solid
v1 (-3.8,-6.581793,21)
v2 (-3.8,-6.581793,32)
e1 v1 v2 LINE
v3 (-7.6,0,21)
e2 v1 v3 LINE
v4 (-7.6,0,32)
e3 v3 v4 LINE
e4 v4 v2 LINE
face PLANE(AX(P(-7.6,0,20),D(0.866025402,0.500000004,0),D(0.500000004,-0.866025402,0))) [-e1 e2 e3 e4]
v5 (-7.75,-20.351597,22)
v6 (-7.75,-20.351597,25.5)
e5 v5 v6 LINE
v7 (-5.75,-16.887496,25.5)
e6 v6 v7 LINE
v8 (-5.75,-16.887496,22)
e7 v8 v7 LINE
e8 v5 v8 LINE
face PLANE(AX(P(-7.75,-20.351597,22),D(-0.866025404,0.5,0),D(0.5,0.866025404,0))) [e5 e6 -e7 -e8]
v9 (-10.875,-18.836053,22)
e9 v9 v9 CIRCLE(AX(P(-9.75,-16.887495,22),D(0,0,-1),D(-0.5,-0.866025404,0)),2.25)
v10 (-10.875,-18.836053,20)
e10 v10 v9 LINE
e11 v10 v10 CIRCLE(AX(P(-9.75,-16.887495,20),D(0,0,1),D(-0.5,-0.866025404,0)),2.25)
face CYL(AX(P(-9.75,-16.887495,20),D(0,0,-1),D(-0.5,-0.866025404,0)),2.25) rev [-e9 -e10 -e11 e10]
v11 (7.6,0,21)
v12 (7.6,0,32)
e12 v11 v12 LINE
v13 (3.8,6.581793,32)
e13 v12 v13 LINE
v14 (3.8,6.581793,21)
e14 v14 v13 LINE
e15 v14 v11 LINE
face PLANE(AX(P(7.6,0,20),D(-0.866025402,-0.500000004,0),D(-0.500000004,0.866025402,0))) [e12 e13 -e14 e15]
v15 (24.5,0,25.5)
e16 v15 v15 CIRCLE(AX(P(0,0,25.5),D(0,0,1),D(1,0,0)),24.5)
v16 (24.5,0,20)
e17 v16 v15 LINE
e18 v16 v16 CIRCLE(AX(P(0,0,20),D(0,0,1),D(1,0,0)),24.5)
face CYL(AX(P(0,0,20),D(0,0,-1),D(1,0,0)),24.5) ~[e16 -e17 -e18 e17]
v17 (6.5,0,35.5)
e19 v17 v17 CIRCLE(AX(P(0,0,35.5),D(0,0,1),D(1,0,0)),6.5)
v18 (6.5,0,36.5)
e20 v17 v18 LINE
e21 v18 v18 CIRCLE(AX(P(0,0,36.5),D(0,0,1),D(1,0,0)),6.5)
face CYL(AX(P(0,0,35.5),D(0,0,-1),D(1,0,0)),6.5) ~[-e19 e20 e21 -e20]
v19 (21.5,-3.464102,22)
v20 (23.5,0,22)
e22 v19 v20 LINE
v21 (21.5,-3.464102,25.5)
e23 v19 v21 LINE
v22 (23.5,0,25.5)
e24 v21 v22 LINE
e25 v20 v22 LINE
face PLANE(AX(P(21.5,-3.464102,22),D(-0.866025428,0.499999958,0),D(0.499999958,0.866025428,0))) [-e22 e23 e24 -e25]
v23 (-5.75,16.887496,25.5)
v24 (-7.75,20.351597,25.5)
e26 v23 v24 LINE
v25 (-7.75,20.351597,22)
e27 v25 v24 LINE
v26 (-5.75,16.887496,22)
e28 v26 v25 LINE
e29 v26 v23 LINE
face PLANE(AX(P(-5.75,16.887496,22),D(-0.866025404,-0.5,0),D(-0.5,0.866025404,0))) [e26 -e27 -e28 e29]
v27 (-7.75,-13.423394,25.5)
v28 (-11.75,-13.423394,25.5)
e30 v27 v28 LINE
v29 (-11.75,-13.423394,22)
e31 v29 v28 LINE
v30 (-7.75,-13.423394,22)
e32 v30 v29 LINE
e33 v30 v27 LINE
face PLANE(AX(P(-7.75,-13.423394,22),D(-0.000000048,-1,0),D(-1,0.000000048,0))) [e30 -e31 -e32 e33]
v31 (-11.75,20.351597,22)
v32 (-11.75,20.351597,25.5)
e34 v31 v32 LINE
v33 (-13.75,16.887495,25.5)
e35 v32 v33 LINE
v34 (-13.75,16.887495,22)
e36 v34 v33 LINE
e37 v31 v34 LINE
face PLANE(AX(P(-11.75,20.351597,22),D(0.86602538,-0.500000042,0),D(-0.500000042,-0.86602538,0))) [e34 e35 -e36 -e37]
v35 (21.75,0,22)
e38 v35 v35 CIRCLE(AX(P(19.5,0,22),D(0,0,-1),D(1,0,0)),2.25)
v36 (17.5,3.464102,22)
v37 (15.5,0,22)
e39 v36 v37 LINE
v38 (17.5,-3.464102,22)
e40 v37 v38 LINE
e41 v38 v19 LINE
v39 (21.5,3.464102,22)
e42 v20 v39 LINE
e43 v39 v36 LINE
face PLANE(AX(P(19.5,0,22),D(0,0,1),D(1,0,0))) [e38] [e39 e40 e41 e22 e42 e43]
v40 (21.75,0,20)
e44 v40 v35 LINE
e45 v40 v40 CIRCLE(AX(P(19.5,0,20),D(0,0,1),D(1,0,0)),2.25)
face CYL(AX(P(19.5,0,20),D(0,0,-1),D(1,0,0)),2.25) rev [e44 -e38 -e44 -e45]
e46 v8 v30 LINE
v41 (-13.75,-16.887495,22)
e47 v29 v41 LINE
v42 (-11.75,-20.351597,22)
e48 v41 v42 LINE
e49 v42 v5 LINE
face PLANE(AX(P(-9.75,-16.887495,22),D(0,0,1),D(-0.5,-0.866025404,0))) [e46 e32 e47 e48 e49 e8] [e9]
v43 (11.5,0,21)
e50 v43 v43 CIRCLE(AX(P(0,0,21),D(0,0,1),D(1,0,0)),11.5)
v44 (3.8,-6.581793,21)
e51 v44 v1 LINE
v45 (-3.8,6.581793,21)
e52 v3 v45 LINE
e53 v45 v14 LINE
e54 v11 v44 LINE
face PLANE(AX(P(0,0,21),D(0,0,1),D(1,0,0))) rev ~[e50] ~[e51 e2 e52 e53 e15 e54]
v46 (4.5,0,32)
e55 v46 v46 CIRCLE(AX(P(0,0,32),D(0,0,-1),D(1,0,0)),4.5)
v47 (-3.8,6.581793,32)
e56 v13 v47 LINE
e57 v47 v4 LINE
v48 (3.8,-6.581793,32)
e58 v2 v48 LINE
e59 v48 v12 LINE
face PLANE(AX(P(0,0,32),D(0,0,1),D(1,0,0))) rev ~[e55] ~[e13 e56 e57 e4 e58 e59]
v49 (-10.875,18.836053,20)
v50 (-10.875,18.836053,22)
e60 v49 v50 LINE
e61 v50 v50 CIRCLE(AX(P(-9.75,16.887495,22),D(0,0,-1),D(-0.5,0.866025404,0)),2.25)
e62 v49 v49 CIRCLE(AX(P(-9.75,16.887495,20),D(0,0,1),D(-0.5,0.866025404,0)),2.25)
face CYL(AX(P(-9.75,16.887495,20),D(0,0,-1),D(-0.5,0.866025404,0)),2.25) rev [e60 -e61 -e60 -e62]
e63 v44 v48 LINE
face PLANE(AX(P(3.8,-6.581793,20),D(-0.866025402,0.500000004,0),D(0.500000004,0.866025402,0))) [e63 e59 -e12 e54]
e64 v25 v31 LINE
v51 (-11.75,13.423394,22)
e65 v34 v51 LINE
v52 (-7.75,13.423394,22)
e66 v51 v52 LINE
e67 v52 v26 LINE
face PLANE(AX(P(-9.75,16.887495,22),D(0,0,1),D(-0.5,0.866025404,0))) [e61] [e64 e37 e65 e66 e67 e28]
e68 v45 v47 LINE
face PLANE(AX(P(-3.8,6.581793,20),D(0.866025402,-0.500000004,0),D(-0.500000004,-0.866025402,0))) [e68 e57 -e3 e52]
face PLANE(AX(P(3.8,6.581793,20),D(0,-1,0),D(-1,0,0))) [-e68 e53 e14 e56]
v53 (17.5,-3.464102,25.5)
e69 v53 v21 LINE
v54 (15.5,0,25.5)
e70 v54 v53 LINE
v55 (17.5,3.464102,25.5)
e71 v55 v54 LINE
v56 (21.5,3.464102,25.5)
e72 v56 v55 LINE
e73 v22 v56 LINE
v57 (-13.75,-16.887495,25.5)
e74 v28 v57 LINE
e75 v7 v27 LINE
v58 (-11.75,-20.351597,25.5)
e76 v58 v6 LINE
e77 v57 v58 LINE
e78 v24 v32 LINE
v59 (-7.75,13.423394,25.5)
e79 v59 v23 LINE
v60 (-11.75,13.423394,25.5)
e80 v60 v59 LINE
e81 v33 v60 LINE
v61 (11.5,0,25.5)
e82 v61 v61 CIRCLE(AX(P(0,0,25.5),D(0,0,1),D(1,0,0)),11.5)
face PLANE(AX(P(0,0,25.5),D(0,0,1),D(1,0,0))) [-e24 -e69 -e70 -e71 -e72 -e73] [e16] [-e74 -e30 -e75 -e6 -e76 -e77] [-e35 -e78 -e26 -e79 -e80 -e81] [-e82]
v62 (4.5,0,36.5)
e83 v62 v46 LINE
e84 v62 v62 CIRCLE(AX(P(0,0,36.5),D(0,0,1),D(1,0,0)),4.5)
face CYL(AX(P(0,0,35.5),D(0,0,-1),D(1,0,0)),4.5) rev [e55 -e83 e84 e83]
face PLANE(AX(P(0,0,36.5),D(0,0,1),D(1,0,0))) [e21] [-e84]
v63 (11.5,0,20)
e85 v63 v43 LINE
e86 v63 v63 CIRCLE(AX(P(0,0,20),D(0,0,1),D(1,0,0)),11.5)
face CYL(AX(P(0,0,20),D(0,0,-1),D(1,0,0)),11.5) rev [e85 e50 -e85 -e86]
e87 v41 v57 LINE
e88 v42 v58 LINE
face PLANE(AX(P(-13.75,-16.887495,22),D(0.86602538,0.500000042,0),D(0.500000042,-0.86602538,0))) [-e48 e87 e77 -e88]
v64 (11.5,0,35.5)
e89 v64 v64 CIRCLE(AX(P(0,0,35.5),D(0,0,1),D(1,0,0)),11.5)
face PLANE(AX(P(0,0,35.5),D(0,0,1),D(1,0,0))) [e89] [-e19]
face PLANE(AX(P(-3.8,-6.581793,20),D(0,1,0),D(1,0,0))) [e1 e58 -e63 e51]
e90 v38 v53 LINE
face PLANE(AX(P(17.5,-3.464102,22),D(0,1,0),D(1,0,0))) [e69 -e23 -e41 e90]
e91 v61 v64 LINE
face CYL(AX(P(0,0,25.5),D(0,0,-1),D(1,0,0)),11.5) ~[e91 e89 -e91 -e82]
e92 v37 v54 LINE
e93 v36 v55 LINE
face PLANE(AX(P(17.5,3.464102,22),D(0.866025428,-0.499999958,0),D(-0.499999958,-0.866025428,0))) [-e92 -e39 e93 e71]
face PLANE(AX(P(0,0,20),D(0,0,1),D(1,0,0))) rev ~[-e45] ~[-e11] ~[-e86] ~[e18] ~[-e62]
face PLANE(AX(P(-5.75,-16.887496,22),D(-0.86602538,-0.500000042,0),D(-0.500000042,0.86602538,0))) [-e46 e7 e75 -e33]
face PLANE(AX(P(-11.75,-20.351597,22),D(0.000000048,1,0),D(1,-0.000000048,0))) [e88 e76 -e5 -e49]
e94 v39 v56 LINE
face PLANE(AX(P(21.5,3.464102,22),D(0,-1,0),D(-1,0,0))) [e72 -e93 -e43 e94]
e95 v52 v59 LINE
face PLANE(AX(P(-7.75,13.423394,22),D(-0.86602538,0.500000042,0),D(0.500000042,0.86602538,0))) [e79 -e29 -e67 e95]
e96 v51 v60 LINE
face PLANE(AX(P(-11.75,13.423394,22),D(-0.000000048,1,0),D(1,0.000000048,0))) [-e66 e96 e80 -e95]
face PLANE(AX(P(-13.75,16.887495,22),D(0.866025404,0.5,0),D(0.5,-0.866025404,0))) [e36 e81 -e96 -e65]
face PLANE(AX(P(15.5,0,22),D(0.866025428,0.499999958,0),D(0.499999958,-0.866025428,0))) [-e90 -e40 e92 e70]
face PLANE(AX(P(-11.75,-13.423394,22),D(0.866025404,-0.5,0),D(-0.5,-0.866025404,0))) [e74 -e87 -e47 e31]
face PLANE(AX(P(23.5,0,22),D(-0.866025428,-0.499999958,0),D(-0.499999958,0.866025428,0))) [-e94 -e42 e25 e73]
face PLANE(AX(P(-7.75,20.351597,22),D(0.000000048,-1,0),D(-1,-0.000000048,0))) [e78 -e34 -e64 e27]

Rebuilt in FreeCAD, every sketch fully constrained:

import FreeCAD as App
import Part
import Sketcher
Q = App.Units.Quantity

doc = App.newDocument("Part")
body = doc.addObject("PartDesign::Body", "Body")

# Sketch on XY plane
sketch1 = body.newObject("Sketcher::SketchObject", "Sketch")
sketch1.AttachmentSupport = (doc.getObject("XY_Plane"), [""])
sketch1.MapMode = "FlatFace"
sketch1.AttachmentOffset = App.Placement(App.Vector(0, 0, 35.5), App.Rotation())
sketch1.addGeometry([
    Part.Circle(App.Vector(0, 0, 0), App.Vector(0, 0, 1), 6.5),
    Part.Circle(App.Vector(0, 0, 0), App.Vector(0, 0, 1), 4.5),
], False)
sketch1.addConstraint([
    Sketcher.Constraint("Coincident", 0, 3, -1, 1),
    Sketcher.Constraint("Coincident", 1, 3, -1, 1),
    Sketcher.Constraint("Diameter", 0, Q("13 mm")),
    Sketcher.Constraint("Diameter", 1, Q("9 mm")),
])
pad1 = body.newObject("PartDesign::Pad", "Pad")
pad1.Profile = sketch1
pad1.Length = 1
body2 = doc.addObject("PartDesign::Body", "Body001")

# Sketch on XY plane
sketch2 = body2.newObject("Sketcher::SketchObject", "Sketch001")
sketch2.AttachmentSupport = (doc.getObject("XY_Plane001"), [""])
sketch2.MapMode = "FlatFace"
sketch2.addGeometry([
    Part.LineSegment(App.Vector(8, 0, 0), App.Vector(4, 7, 0)),  # 0
    Part.LineSegment(App.Vector(4, 7, 0), App.Vector(-4, 7, 0)),  # 1
    Part.LineSegment(App.Vector(-4, 7, 0), App.Vector(-8, 0, 0)),  # 2
    Part.LineSegment(App.Vector(-8, 0, 0), App.Vector(-4, -7, 0)),  # 3
    Part.LineSegment(App.Vector(-4, -7, 0), App.Vector(4, -7, 0)),  # 4
    Part.LineSegment(App.Vector(4, -7, 0), App.Vector(8, 0, 0)),  # 5
], False)
sketch2.addConstraint([
    Sketcher.Constraint("Coincident", 0, 2, 1, 1),
    Sketcher.Constraint("Coincident", 1, 2, 2, 1),
    Sketcher.Constraint("Coincident", 2, 2, 3, 1),
    Sketcher.Constraint("Coincident", 3, 2, 4, 1),
    Sketcher.Constraint("Coincident", 4, 2, 5, 1),
    Sketcher.Constraint("Coincident", 5, 2, 0, 1),
    Sketcher.Constraint("Horizontal", 1),
    Sketcher.Constraint("Horizontal", 4),
    Sketcher.Constraint("Symmetric", 0, 2, 3, 2, -1, 1),
    Sketcher.Constraint("Symmetric", 2, 2, 5, 2, -1, 1),
    Sketcher.Constraint("PointOnObject", 2, 2, -1),
    Sketcher.Constraint("Parallel", 2, 5),
    Sketcher.Constraint("Vertical", 1, 2, 3, 2),
    Sketcher.Constraint("Angle", 0, Q("120 deg")),
    Sketcher.Constraint("DistanceX", 1, 2, 1, 1, Q("7.6 mm")),
    Sketcher.Constraint("Distance", 0, Q("7.6 mm")),
])
pad2 = body2.newObject("PartDesign::Pad", "Pad001")
pad2.Profile = sketch2
pad2.Length = 12
body3 = doc.addObject("PartDesign::Body", "Body002")
doc.recompute()

body2.Placement = App.Placement(App.Vector(0, 0, 20), App.Rotation(App.Vector(0, 0, 1), 0))
boolean = body3.newObject("PartDesign::Boolean", "Boolean")
boolean.Type = "Fuse"
boolean.addObjects([body2])
body4 = doc.addObject("PartDesign::Body", "Body003")

# Sketch on XY plane
sketch3 = body4.newObject("Sketcher::SketchObject", "Sketch002")
sketch3.AttachmentSupport = (doc.getObject("XY_Plane003"), [""])
sketch3.MapMode = "FlatFace"
sketch3.addGeometry(Part.Circle(App.Vector(0, 0, 0), App.Vector(0, 0, 1), 4.5), False)
sketch3.addConstraint([
    Sketcher.Constraint("Coincident", 0, 3, -1, 1),
    Sketcher.Constraint("Diameter", 0, Q("9 mm")),
])
pad3 = body4.newObject("PartDesign::Pad", "Pad002")
pad3.Profile = sketch3
pad3.Length = 500
doc.recompute()

boolean2 = body4.newObject("PartDesign::Boolean", "Boolean001")
boolean2.Type = "Fuse"
boolean2.addObjects([body3])
body5 = doc.addObject("PartDesign::Body", "Body004")

# Sketch on XY plane
sketch4 = body5.newObject("Sketcher::SketchObject", "Sketch003")
sketch4.AttachmentSupport = (doc.getObject("XY_Plane004"), [""])
sketch4.MapMode = "FlatFace"
sketch4.AttachmentOffset = App.Placement(App.Vector(0, 0, 20), App.Rotation())
sketch4.addGeometry(Part.Circle(App.Vector(0, 0, 0), App.Vector(0, 0, 1), 12), False)
sketch4.addConstraint([
    Sketcher.Constraint("Coincident", 0, 3, -1, 1),
    Sketcher.Constraint("Diameter", 0, Q("23 mm")),
])
pad4 = body5.newObject("PartDesign::Pad", "Pad003")
pad4.Profile = sketch4
pad4.Length = 1
body6 = doc.addObject("PartDesign::Body", "Body005")

# Sketch on XY plane
sketch5 = body6.newObject("Sketcher::SketchObject", "Sketch004")
sketch5.AttachmentSupport = (doc.getObject("XY_Plane005"), [""])
sketch5.MapMode = "FlatFace"
sketch5.addGeometry([
    Part.LineSegment(App.Vector(4, 0, 0), App.Vector(2, 3.5, 0)),  # 0
    Part.LineSegment(App.Vector(2, 3.5, 0), App.Vector(-2, 3.5, 0)),  # 1
    Part.LineSegment(App.Vector(-2, 3.5, 0), App.Vector(-4, 0, 0)),  # 2
    Part.LineSegment(App.Vector(-4, 0, 0), App.Vector(-2, -3.5, 0)),  # 3
    Part.LineSegment(App.Vector(-2, -3.5, 0), App.Vector(2, -3.5, 0)),  # 4
    Part.LineSegment(App.Vector(2, -3.5, 0), App.Vector(4, 0, 0)),  # 5
], False)
sketch5.addConstraint([
    Sketcher.Constraint("Coincident", 0, 2, 1, 1),
    Sketcher.Constraint("Coincident", 1, 2, 2, 1),
    Sketcher.Constraint("Coincident", 2, 2, 3, 1),
    Sketcher.Constraint("Coincident", 3, 2, 4, 1),
    Sketcher.Constraint("Coincident", 4, 2, 5, 1),
    Sketcher.Constraint("Coincident", 5, 2, 0, 1),
    Sketcher.Constraint("Horizontal", 1),
    Sketcher.Constraint("Horizontal", 4),
    Sketcher.Constraint("Symmetric", 0, 2, 3, 2, -1, 1),
    Sketcher.Constraint("Symmetric", 2, 2, 5, 2, -1, 1),
    Sketcher.Constraint("PointOnObject", 2, 2, -1),
    Sketcher.Constraint("Parallel", 2, 5),
    Sketcher.Constraint("Vertical", 1, 2, 3, 2),
    Sketcher.Constraint("DistanceX", 1, 2, 1, 1, Q("4 mm")),
    Sketcher.Constraint("Angle", 0, Q("119.999997 deg")),
    Sketcher.Constraint("Distance", 0, Q("4 mm")),
])
pad5 = body6.newObject("PartDesign::Pad", "Pad004")
pad5.Profile = sketch5
pad5.Length = 3.5
body7 = doc.addObject("PartDesign::Body", "Body006")
doc.recompute()

body6.Placement = App.Placement(App.Vector(19.5, 0, 22), App.Rotation(App.Vector(0, 0, 1), 0))
boolean3 = body7.newObject("PartDesign::Boolean", "Boolean002")
boolean3.Type = "Fuse"
boolean3.addObjects([body6])
body8 = doc.addObject("PartDesign::Body", "Body007")

# Sketch on XY plane
sketch6 = body8.newObject("Sketcher::SketchObject", "Sketch005")
sketch6.AttachmentSupport = (doc.getObject("XY_Plane007"), [""])
sketch6.MapMode = "FlatFace"
sketch6.AttachmentOffset = App.Placement(App.Vector(0, 0, 20), App.Rotation())
sketch6.addGeometry(Part.Circle(App.Vector(19.5, 0, 0), App.Vector(0, 0, 1), 2.2), False)
sketch6.addConstraint([
    Sketcher.Constraint("PointOnObject", 0, 3, -1),
    Sketcher.Constraint("Diameter", 0, Q("4.5 mm")),
    Sketcher.Constraint("DistanceX", -1, 1, 0, 3, Q("19.5 mm")),
])
pad6 = body8.newObject("PartDesign::Pad", "Pad005")
pad6.Profile = sketch6
pad6.Length = 10
doc.recompute()

boolean4 = body8.newObject("PartDesign::Boolean", "Boolean003")
boolean4.Type = "Fuse"
boolean4.addObjects([body7])
body9 = doc.addObject("PartDesign::Body", "Body008")
body9.AllowCompound = True
doc.recompute()

body9.BaseFeature = body8
doc.recompute()

body10 = doc.addObject("PartDesign::Body", "Body009")
body10.BaseFeature = body8
body10.Placement = App.Placement(App.Vector(0, 0, 0), App.Rotation(App.Vector(0, 0, 1), 120))
boolean5 = body9.newObject("PartDesign::Boolean", "Boolean004")
boolean5.Type = "Fuse"
boolean5.addObjects([body10])
doc.recompute()

body8.Placement = App.Placement(App.Vector(0, 0, 0), App.Rotation(App.Vector(0, 0, 1), 240))
boolean6 = body9.newObject("PartDesign::Boolean", "Boolean005")
boolean6.Type = "Fuse"
boolean6.addObjects([body8])
body11 = doc.addObject("PartDesign::Body", "Body010")

# Sketch on XY plane
sketch7 = body11.newObject("Sketcher::SketchObject", "Sketch006")
sketch7.AttachmentSupport = (doc.getObject("XY_Plane010"), [""])
sketch7.MapMode = "FlatFace"
sketch7.AttachmentOffset = App.Placement(App.Vector(0, 0, 20), App.Rotation())
sketch7.addGeometry(Part.Circle(App.Vector(0, 0, 0), App.Vector(0, 0, 1), 24), False)
sketch7.addConstraint([
    Sketcher.Constraint("Coincident", 0, 3, -1, 1),
    Sketcher.Constraint("Diameter", 0, Q("49 mm")),
])
pad7 = body11.newObject("PartDesign::Pad", "Pad006")
pad7.Profile = sketch7
pad7.Length = 5.5
doc.recompute()

boolean7 = body11.newObject("PartDesign::Boolean", "Boolean006")
boolean7.Type = "Cut"
boolean7.addObjects([body9])
doc.recompute()

boolean8 = body11.newObject("PartDesign::Boolean", "Boolean007")
boolean8.Type = "Cut"
boolean8.addObjects([body5])
body12 = doc.addObject("PartDesign::Body", "Body011")

# Sketch on XY plane
sketch8 = body12.newObject("Sketcher::SketchObject", "Sketch007")
sketch8.AttachmentSupport = (doc.getObject("XY_Plane011"), [""])
sketch8.MapMode = "FlatFace"
sketch8.AttachmentOffset = App.Placement(App.Vector(0, 0, 25.5), App.Rotation())
sketch8.addGeometry(Part.Circle(App.Vector(0, 0, 0), App.Vector(0, 0, 1), 12), False)
sketch8.addConstraint([
    Sketcher.Constraint("Coincident", 0, 3, -1, 1),
    Sketcher.Constraint("Diameter", 0, Q("23 mm")),
])
pad8 = body12.newObject("PartDesign::Pad", "Pad007")
pad8.Profile = sketch8
pad8.Length = 10
doc.recompute()

boolean9 = body12.newObject("PartDesign::Boolean", "Boolean008")
boolean9.Type = "Fuse"
boolean9.addObjects([body11])
doc.recompute()

boolean10 = body12.newObject("PartDesign::Boolean", "Boolean009")
boolean10.Type = "Cut"
boolean10.addObjects([body4])
doc.recompute()

boolean11 = body12.newObject("PartDesign::Boolean", "Boolean010")
boolean11.Type = "Fuse"
boolean11.addObjects([body])

doc.recompute()
